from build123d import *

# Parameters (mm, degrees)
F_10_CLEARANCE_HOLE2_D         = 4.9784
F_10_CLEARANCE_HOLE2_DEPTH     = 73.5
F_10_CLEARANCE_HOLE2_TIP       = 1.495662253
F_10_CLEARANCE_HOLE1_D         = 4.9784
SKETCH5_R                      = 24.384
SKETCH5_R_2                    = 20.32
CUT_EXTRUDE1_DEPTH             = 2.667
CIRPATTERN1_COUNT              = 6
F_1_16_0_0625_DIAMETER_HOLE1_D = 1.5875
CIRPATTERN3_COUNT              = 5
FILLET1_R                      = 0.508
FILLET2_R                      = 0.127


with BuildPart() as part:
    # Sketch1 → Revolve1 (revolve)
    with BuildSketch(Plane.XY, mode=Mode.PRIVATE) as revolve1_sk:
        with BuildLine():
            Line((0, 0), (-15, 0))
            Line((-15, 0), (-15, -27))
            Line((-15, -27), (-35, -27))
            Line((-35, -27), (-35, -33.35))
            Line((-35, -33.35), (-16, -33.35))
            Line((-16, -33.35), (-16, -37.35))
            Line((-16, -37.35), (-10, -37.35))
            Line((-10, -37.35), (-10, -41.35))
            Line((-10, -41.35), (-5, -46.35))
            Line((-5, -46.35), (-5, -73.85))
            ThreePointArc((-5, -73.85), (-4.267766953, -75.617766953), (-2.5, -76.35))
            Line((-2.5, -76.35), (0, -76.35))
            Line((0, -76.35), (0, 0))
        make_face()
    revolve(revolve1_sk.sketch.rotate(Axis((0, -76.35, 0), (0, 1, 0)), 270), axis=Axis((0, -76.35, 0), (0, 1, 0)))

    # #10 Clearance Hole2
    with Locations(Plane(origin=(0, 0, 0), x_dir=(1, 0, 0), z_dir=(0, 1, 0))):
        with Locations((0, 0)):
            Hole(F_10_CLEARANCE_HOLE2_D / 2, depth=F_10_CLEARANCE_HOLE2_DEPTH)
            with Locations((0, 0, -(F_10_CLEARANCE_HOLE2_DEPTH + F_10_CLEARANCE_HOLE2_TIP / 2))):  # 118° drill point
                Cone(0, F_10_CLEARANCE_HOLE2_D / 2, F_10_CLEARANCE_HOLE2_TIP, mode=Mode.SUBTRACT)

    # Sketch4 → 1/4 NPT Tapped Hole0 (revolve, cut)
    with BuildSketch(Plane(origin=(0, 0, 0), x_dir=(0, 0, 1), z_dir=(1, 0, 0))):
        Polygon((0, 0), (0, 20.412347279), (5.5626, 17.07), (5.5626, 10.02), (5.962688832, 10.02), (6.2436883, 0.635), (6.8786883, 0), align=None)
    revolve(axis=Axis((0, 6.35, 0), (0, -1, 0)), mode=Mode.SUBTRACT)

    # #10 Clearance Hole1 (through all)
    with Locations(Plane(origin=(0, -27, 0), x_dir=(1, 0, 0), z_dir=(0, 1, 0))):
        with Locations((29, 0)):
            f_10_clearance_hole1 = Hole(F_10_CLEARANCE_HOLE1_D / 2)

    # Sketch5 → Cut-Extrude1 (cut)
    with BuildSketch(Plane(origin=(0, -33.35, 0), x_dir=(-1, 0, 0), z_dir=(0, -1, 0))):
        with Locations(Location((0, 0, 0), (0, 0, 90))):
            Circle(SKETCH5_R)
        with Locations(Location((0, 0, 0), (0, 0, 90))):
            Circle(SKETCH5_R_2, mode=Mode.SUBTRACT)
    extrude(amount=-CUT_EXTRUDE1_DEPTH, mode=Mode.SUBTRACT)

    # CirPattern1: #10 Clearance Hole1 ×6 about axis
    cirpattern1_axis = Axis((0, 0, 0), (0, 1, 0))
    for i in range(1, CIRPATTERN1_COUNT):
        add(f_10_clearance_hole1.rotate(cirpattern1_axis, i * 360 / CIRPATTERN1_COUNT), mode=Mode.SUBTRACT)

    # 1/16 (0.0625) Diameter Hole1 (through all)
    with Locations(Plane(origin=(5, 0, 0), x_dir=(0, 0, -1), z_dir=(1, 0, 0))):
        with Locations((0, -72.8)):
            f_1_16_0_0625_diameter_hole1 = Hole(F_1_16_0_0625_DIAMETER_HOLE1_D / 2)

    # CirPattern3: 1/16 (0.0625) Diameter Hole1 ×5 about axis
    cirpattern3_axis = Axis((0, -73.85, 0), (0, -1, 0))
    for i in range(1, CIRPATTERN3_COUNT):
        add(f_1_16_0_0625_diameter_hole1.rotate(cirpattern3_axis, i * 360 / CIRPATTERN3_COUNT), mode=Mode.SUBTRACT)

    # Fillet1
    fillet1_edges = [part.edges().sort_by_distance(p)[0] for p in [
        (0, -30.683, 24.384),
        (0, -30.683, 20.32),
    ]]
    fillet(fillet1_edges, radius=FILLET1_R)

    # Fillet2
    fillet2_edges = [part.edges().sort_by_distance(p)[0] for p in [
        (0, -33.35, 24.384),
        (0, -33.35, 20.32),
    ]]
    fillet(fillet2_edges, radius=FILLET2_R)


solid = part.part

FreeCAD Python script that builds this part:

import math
import FreeCAD as App
import Part
import Sketcher

V = App.Vector
Q = App.Units.Quantity


def edges_at(feature, points):
    """Names of the edges that pass closest to the given points."""
    edges = feature.Shape.Edges
    near = lambda p: min(range(len(edges)), key=lambda i: edges[i].distToShape(Part.Vertex(*p))[0])
    return sorted({f"Edge{near(p) + 1}" for p in points})

doc = App.newDocument("Part")
body = doc.addObject("PartDesign::Body", "Body")

sketch1 = body.newObject("Sketcher::SketchObject", "Sketch")
sketch1.AttachmentSupport = (doc.getObject("XY_Plane"), [""])
sketch1.MapMode = "FlatFace"
sketch1.addGeometry(Part.LineSegment(V(0, 0, 0), V(-15, 0, 0)), False)
sketch1.addGeometry(Part.LineSegment(V(-15, 0, 0), V(-15, -27, 0)), False)
sketch1.addGeometry(Part.LineSegment(V(-15, -27, 0), V(-35, -27, 0)), False)
sketch1.addGeometry(Part.LineSegment(V(-35, -27, 0), V(-35, -33.35, 0)), False)
sketch1.addGeometry(Part.LineSegment(V(-35, -33.35, 0), V(-16, -33.35, 0)), False)
sketch1.addGeometry(Part.LineSegment(V(-16, -33.35, 0), V(-16, -37.35, 0)), False)
sketch1.addGeometry(Part.LineSegment(V(-16, -37.35, 0), V(-10, -37.35, 0)), False)
sketch1.addGeometry(Part.LineSegment(V(-10, -37.35, 0), V(-10, -41.35, 0)), False)
sketch1.addGeometry(Part.LineSegment(V(-10, -41.35, 0), V(-5, -46.35, 0)), False)
sketch1.addGeometry(Part.LineSegment(V(-5, -46.35, 0), V(-5, -73.85, 0)), False)
sketch1.addGeometry(Part.ArcOfCircle(Part.Circle(V(-2.5, -73.85, 0), V(0, 0, 1), 2.5), math.radians(180), math.radians(270)), False)
sketch1.addGeometry(Part.LineSegment(V(-2.5, -76.35, 0), V(0, -76.35, 0)), False)
sketch1.addGeometry(Part.LineSegment(V(0, -76.35, 0), V(0, 0, 0)), False)
sketch1.addConstraint(Sketcher.Constraint("Coincident", 0, 2, 1, 1))
sketch1.addConstraint(Sketcher.Constraint("Coincident", 1, 2, 2, 1))
sketch1.addConstraint(Sketcher.Constraint("Coincident", 2, 2, 3, 1))
sketch1.addConstraint(Sketcher.Constraint("Coincident", 3, 2, 4, 1))
sketch1.addConstraint(Sketcher.Constraint("Coincident", 4, 2, 5, 1))
sketch1.addConstraint(Sketcher.Constraint("Coincident", 5, 2, 6, 1))
sketch1.addConstraint(Sketcher.Constraint("Coincident", 6, 2, 7, 1))
sketch1.addConstraint(Sketcher.Constraint("Coincident", 7, 2, 8, 1))
sketch1.addConstraint(Sketcher.Constraint("Coincident", 8, 2, 9, 1))
sketch1.addConstraint(Sketcher.Constraint("Tangent", 9, 2, 10, 1))
sketch1.addConstraint(Sketcher.Constraint("Tangent", 10, 2, 11, 1))
sketch1.addConstraint(Sketcher.Constraint("Coincident", 11, 2, 12, 1))
sketch1.addConstraint(Sketcher.Constraint("Coincident", 12, 2, 0, 1))
sketch1.addConstraint(Sketcher.Constraint("Horizontal", 0))
sketch1.addConstraint(Sketcher.Constraint("Vertical", 1))
sketch1.addConstraint(Sketcher.Constraint("Horizontal", 2))
sketch1.addConstraint(Sketcher.Constraint("Vertical", 3))
sketch1.addConstraint(Sketcher.Constraint("Horizontal", 4))
sketch1.addConstraint(Sketcher.Constraint("Vertical", 5))
sketch1.addConstraint(Sketcher.Constraint("Horizontal", 6))
sketch1.addConstraint(Sketcher.Constraint("Vertical", 7))
sketch1.addConstraint(Sketcher.Constraint("Vertical", 9))
sketch1.addConstraint(Sketcher.Constraint("Horizontal", 11))
sketch1.addConstraint(Sketcher.Constraint("Vertical", 12))
sketch1.addConstraint(Sketcher.Constraint("Coincident", 12, 2, -1, 1))
sketch1.addConstraint(Sketcher.Constraint("Equal", 5, 7))
sketch1.addConstraint(Sketcher.Constraint("Radius", 10, Q("2.5 mm")))
sketch1.addConstraint(Sketcher.Constraint("DistanceX", 0, 2, 0, 1, Q("15 mm")))
sketch1.addConstraint(Sketcher.Constraint("DistanceX", 2, 2, 2, 1, Q("20 mm")))
sketch1.addConstraint(Sketcher.Constraint("DistanceX", 4, 1, 4, 2, Q("19 mm")))
sketch1.addConstraint(Sketcher.Constraint("DistanceX", 6, 1, 6, 2, Q("6 mm")))
sketch1.addConstraint(Sketcher.Constraint("DistanceY", 1, 2, 1, 1, Q("27 mm")))
sketch1.addConstraint(Sketcher.Constraint("DistanceY", 5, 2, 5, 1, Q("4 mm")))
sketch1.addConstraint(Sketcher.Constraint("Angle", 8, Q("-45 deg")))
sketch1.addConstraint(Sketcher.Constraint("DistanceX", 11, 1, 11, 2, Q("2.5 mm")))
sketch1.addConstraint(Sketcher.Constraint("DistanceY", 9, 2, 9, 1, Q("27.5 mm")))
sketch1.addConstraint(Sketcher.Constraint("DistanceY", 3, 2, 3, 1, Q("6.35 mm")))
revolution = body.newObject("PartDesign::Revolution", "Revolution")
revolution.Profile = sketch1
revolution.ReferenceAxis = (sketch1, ["V_Axis"])
revolution.Angle = 360

sketch2 = body.newObject("Sketcher::SketchObject", "Sketch001")
sketch2.AttachmentSupport = (doc.getObject("XZ_Plane"), [""])
sketch2.MapMode = "FlatFace"
sketch2.addGeometry(Part.Circle(V(0, 0, 0), V(0, 0, 1), 2.4892), False)
sketch2.addConstraint(Sketcher.Constraint("Coincident", 0, 3, -1, 1))
sketch2.addConstraint(Sketcher.Constraint("Diameter", 0, Q("4.9784 mm")))
doc.recompute()
hole = body.newObject("PartDesign::Hole", "Hole")
hole.Profile = sketch2
hole.ThreadType = "None"
hole.Diameter = 4.9784
hole.DepthType = "Dimension"
hole.Depth = 73.5
hole.DrillPoint = "Angled"
hole.DrillPointAngle = 118
hole.Reversed = True

sketch3 = body.newObject("Sketcher::SketchObject", "Sketch002")
sketch3.AttachmentSupport = (doc.getObject("YZ_Plane"), [""])
sketch3.MapMode = "FlatFace"
sketch3.addGeometry(Part.LineSegment(V(-20.412347, 0, 0), V(0, 0, 0)), False)
sketch3.addGeometry(Part.LineSegment(V(0, 0, 0), V(0, 6.878688, 0)), False)
sketch3.addGeometry(Part.LineSegment(V(0, 6.878688, 0), V(-0.635, 6.243688, 0)), False)
sketch3.addGeometry(Part.LineSegment(V(-0.635, 6.243688, 0), V(-10.02, 5.962689, 0)), False)
sketch3.addGeometry(Part.LineSegment(V(-10.02, 5.962689, 0), V(-10.02, 5.5626, 0)), False)
sketch3.addGeometry(Part.LineSegment(V(-10.02, 5.5626, 0), V(-17.07, 5.5626, 0)), False)
sketch3.addGeometry(Part.LineSegment(V(-17.07, 5.5626, 0), V(-20.412347, 0, 0)), False)
sketch3.addConstraint(Sketcher.Constraint("Coincident", 0, 2, 1, 1))
sketch3.addConstraint(Sketcher.Constraint("Coincident", 1, 2, 2, 1))
sketch3.addConstraint(Sketcher.Constraint("Coincident", 2, 2, 3, 1))
sketch3.addConstraint(Sketcher.Constraint("Coincident", 3, 2, 4, 1))
sketch3.addConstraint(Sketcher.Constraint("Coincident", 4, 2, 5, 1))
sketch3.addConstraint(Sketcher.Constraint("Coincident", 5, 2, 6, 1))
sketch3.addConstraint(Sketcher.Constraint("Coincident", 6, 2, 0, 1))
sketch3.addConstraint(Sketcher.Constraint("Horizontal", 0))
sketch3.addConstraint(Sketcher.Constraint("Vertical", 1))
sketch3.addConstraint(Sketcher.Constraint("Vertical", 4))
sketch3.addConstraint(Sketcher.Constraint("Horizontal", 5))
sketch3.addConstraint(Sketcher.Constraint("Coincident", 0, 2, -1, 1))
sketch3.addConstraint(Sketcher.Constraint("Angle", 2, Q("-135 deg")))
sketch3.addConstraint(Sketcher.Constraint("Angle", 6, Q("-121 deg")))
sketch3.addConstraint(Sketcher.Constraint("DistanceX", 5, 2, 5, 1, Q("7.05 mm")))
sketch3.addConstraint(Sketcher.Constraint("DistanceX", 3, 2, -1, 1, Q("10.02 mm")))
sketch3.addConstraint(Sketcher.Constraint("DistanceX", 2, 2, -1, 1, Q("0.635 mm")))
sketch3.addConstraint(Sketcher.Constraint("DistanceY", 3, 2, 2, 2, Q("0.280999 mm")))
sketch3.addConstraint(Sketcher.Constraint("DistanceY", 1, 1, 1, 2, Q("6.878688 mm")))
sketch3.addConstraint(Sketcher.Constraint("DistanceY", 4, 2, 4, 1, Q("0.400089 mm")))
groove = body.newObject("PartDesign::Groove", "Groove")
groove.Profile = sketch3
groove.ReferenceAxis = (sketch3, ["H_Axis"])
groove.Angle = 360

sketch4 = body.newObject("Sketcher::SketchObject", "Sketch003")
sketch4.AttachmentSupport = (doc.getObject("XZ_Plane"), [""])
sketch4.MapMode = "FlatFace"
sketch4.AttachmentOffset = App.Placement(V(0, 0, 27), App.Rotation())
sketch4.addGeometry(Part.Circle(V(29, 0, 0), V(0, 0, 1), 2.4892), False)
sketch4.addConstraint(Sketcher.Constraint("PointOnObject", 0, 3, -1))
sketch4.addConstraint(Sketcher.Constraint("DistanceX", -1, 1, 0, 3, Q("29 mm")))
sketch4.addConstraint(Sketcher.Constraint("Diameter", 0, Q("4.9784 mm")))
doc.recompute()
hole2 = body.newObject("PartDesign::Hole", "Hole001")
hole2.Profile = sketch4
hole2.ThreadType = "None"
hole2.Diameter = 4.9784
hole2.DepthType = "ThroughAll"
hole2.Reversed = True

sketch5 = body.newObject("Sketcher::SketchObject", "Sketch004")
sketch5.AttachmentSupport = (doc.getObject("XZ_Plane"), [""])
sketch5.MapMode = "FlatFace"
sketch5.AttachmentOffset = App.Placement(V(0, 0, 33.35), App.Rotation())
sketch5.addGeometry(Part.Circle(V(0, 0, 0), V(0, 0, 1), 24.384), False)
sketch5.addGeometry(Part.Circle(V(0, 0, 0), V(0, 0, 1), 20.32), False)
sketch5.addConstraint(Sketcher.Constraint("Coincident", 0, 3, -1, 1))
sketch5.addConstraint(Sketcher.Constraint("Coincident", 1, 3, -1, 1))
sketch5.addConstraint(Sketcher.Constraint("Diameter", 1, Q("40.64 mm")))
sketch5.addConstraint(Sketcher.Constraint("Diameter", 0, Q("48.768 mm")))
pocket1 = body.newObject("PartDesign::Pocket", "Pocket")
pocket1.Profile = sketch5
pocket1.Length = 2.667
doc.recompute()

polarpattern = body.newObject("PartDesign::PolarPattern", "PolarPattern")
polarpattern.Originals = [hole2]
polarpattern.Axis = (doc.getObject("Y_Axis"), [""])
polarpattern.Angle = 360
polarpattern.Occurrences = 6
body.Tip = polarpattern

sketch6 = body.newObject("Sketcher::SketchObject", "Sketch005")
sketch6.AttachmentSupport = (doc.getObject("YZ_Plane"), [""])
sketch6.MapMode = "FlatFace"
sketch6.AttachmentOffset = App.Placement(V(0, 0, 5), App.Rotation())
sketch6.addGeometry(Part.Circle(V(-72.8, 0, 0), V(0, 0, 1), 0.79375), False)
sketch6.addConstraint(Sketcher.Constraint("PointOnObject", 0, 3, -1))
sketch6.addConstraint(Sketcher.Constraint("Diameter", 0, Q("1.5875 mm")))
sketch6.addConstraint(Sketcher.Constraint("DistanceX", 0, 3, -1, 1, Q("72.8 mm")))
doc.recompute()
hole3 = body.newObject("PartDesign::Hole", "Hole002")
hole3.Profile = sketch6
hole3.ThreadType = "None"
hole3.Diameter = 1.5875
hole3.DepthType = "ThroughAll"
doc.recompute()

polarpattern2 = body.newObject("PartDesign::PolarPattern", "PolarPattern001")
polarpattern2.Originals = [hole3]
polarpattern2.Axis = (doc.getObject("Y_Axis"), [""])
polarpattern2.Angle = 360
polarpattern2.Occurrences = 5
body.Tip = polarpattern2
doc.recompute()

fillet = body.newObject("PartDesign::Fillet", "Fillet")
fillet.Base = (polarpattern2, edges_at(polarpattern2, [(0, -30.683, 24.384), (0, -30.683, 20.32)]))
fillet.Radius = 0.508
doc.recompute()

fillet2 = body.newObject("PartDesign::Fillet", "Fillet001")
fillet2.Base = (fillet, edges_at(fillet, [(0, -33.35, 24.384), (0, -33.35, 20.32)]))
fillet2.Radius = 0.127

doc.recompute()
